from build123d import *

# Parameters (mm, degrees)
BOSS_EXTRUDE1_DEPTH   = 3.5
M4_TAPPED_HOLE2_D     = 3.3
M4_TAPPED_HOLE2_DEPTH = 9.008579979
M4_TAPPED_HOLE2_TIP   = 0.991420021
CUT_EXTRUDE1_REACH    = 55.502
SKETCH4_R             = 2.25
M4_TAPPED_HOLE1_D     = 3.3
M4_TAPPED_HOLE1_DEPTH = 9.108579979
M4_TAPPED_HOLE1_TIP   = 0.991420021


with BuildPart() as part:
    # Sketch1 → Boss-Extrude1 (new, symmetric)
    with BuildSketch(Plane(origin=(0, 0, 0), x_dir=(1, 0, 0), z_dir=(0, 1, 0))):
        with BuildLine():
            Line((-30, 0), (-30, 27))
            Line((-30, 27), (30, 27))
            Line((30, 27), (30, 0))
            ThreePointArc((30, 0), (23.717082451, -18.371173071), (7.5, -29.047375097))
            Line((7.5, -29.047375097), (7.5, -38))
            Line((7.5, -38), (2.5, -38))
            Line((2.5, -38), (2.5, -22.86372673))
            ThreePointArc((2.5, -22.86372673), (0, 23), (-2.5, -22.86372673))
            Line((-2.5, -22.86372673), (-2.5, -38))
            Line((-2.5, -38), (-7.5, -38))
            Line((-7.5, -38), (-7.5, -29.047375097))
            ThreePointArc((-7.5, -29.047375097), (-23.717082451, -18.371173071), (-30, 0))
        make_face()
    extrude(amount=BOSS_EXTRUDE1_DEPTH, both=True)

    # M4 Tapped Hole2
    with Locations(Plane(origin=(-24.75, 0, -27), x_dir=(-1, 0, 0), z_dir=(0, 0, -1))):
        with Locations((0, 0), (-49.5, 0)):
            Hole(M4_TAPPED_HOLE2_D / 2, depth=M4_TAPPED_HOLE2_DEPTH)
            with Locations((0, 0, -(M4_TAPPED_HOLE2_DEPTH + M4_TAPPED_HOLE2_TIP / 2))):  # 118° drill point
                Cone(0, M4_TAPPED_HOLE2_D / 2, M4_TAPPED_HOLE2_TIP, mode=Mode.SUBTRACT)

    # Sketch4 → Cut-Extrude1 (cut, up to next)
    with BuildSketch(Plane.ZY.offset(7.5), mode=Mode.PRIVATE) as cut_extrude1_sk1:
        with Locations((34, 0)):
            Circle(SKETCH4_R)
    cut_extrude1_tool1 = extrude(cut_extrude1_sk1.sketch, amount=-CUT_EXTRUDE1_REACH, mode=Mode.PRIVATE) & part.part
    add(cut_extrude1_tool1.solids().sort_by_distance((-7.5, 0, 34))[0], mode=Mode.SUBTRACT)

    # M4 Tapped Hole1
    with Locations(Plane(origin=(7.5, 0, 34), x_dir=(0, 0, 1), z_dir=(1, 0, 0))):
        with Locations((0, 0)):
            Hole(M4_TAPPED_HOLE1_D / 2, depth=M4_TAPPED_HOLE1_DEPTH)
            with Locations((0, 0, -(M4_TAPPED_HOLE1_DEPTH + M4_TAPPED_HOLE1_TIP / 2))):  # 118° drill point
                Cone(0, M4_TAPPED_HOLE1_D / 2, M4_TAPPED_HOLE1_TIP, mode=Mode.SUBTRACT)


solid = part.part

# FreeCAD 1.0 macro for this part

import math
import FreeCAD as App
import Part
import Sketcher
from FreeCAD import Vector

doc = App.newDocument("Part")
body = doc.addObject("PartDesign::Body", "Body")

# Sketch on XZ plane
sketch1 = doc.addObject("Sketcher::SketchObject", "Sketch")
body.addObject(sketch1)
sketch1.AttachmentSupport = (doc.XZ_Plane, [""])
sketch1.MapMode = "FlatFace"
sketch1.addGeometry([
    Part.LineSegment(Vector(-30, -27, 0), Vector(-30, 0, 0)),  # 0
    Part.ArcOfCircle(Part.Circle(Vector(0, 0, 0), Vector(0, 0, 1), 30), math.radians(104.477512), math.radians(180)),  # 1
    Part.LineSegment(Vector(-7.5, 29.047375, 0), Vector(-7.5, 38, 0)),  # 2
    Part.LineSegment(Vector(-7.5, 38, 0), Vector(-2.5, 38, 0)),  # 3
    Part.LineSegment(Vector(-2.5, 38, 0), Vector(-2.5, 22.863727, 0)),  # 4
    Part.ArcOfCircle(Part.Circle(Vector(0, 0, 0), Vector(0, 0, 1), 23), math.radians(96.240131), math.radians(443.759869)),  # 5
    Part.LineSegment(Vector(2.5, 22.863727, 0), Vector(2.5, 38, 0)),  # 6
    Part.LineSegment(Vector(2.5, 38, 0), Vector(7.5, 38, 0)),  # 7
    Part.LineSegment(Vector(7.5, 38, 0), Vector(7.5, 29.047375, 0)),  # 8
    Part.ArcOfCircle(Part.Circle(Vector(0, 0, 0), Vector(0, 0, 1), 30), math.radians(0), math.radians(75.522488)),  # 9
    Part.LineSegment(Vector(30, 0, 0), Vector(30, -27, 0)),  # 10
    Part.LineSegment(Vector(30, -27, 0), Vector(-30, -27, 0)),  # 11
], False)
sketch1.addConstraint([
    Sketcher.Constraint("Tangent", 0, 2, 1, 2),
    Sketcher.Constraint("Coincident", 1, 1, 2, 1),
    Sketcher.Constraint("Coincident", 2, 2, 3, 1),
    Sketcher.Constraint("Coincident", 3, 2, 4, 1),
    Sketcher.Constraint("Coincident", 4, 2, 5, 1),
    Sketcher.Constraint("Coincident", 5, 2, 6, 1),
    Sketcher.Constraint("Coincident", 6, 2, 7, 1),
    Sketcher.Constraint("Coincident", 7, 2, 8, 1),
    Sketcher.Constraint("Coincident", 8, 2, 9, 2),
    Sketcher.Constraint("Tangent", 9, 1, 10, 1),
    Sketcher.Constraint("Coincident", 10, 2, 11, 1),
    Sketcher.Constraint("Coincident", 11, 2, 0, 1),
    Sketcher.Constraint("Vertical", 0),
    Sketcher.Constraint("Vertical", 2),
    Sketcher.Constraint("Horizontal", 3),
    Sketcher.Constraint("Vertical", 4),
    Sketcher.Constraint("Vertical", 6),
    Sketcher.Constraint("Horizontal", 7),
    Sketcher.Constraint("Vertical", 8),
    Sketcher.Constraint("Vertical", 10),
    Sketcher.Constraint("Horizontal", 11),
    Sketcher.Constraint("Coincident", 1, 3, -1, 1),
    Sketcher.Constraint("Coincident", 5, 3, -1, 1),
    Sketcher.Constraint("Coincident", 9, 3, -1, 1),
    Sketcher.Constraint("Equal", 1, 9),
    Sketcher.Constraint("Symmetric", 3, 2, 6, 2, -2),
    Sketcher.Constraint("Horizontal", 1, 1, 8, 2),
    Sketcher.Constraint("Radius", 1, 30.0),
    Sketcher.Constraint("Radius", 5, 23.0),
    Sketcher.Constraint("DistanceX", 3, 1, 3, 2, 5.0),
    Sketcher.Constraint("DistanceY", 0, 1, 0, 2, 27.0),
    Sketcher.Constraint("DistanceY", -1, 1, 2, 2, 38.0),
    Sketcher.Constraint("DistanceX", 4, 2, 5, 2, 5.0),
])
pad1 = doc.addObject("PartDesign::Pad", "Pad")
body.addObject(pad1)
pad1.Profile = sketch1
pad1.Length = 7
pad1.Midplane = True

# Sketch on XY plane
sketch2 = doc.addObject("Sketcher::SketchObject", "Sketch001")
body.addObject(sketch2)
sketch2.AttachmentSupport = (doc.XY_Plane, [""])
sketch2.MapMode = "FlatFace"
sketch2.AttachmentOffset = App.Placement(Vector(0, 0, -27), App.Rotation())
sketch2.addGeometry([
    Part.Circle(Vector(-24.75, 0, 0), Vector(0, 0, 1), 1.65),
    Part.Circle(Vector(24.75, 0, 0), Vector(0, 0, 1), 1.65),
], False)
sketch2.addConstraint([
    Sketcher.Constraint("Equal", 0, 1),
    Sketcher.Constraint("Symmetric", 0, 3, 1, 3, -1, 1),
    Sketcher.Constraint("PointOnObject", 0, 3, -1),
    Sketcher.Constraint("Diameter", 0, 3.3),
    Sketcher.Constraint("DistanceX", 0, 3, 1, 3, 49.5),
])
doc.recompute()
hole = doc.addObject("PartDesign::Hole", "Hole")
body.addObject(hole)
hole.Profile = sketch2
hole.ThreadType = "None"
hole.Diameter = 3.3
hole.DepthType = "Dimension"
hole.Depth = 9.00858
hole.DrillPoint = "Angled"
hole.DrillPointAngle = 118
hole.Reversed = True

# Sketch on YZ plane
sketch3 = doc.addObject("Sketcher::SketchObject", "Sketch002")
body.addObject(sketch3)
sketch3.AttachmentSupport = (doc.YZ_Plane, [""])
sketch3.MapMode = "FlatFace"
sketch3.AttachmentOffset = App.Placement(Vector(0, 0, -7.5), App.Rotation())
sketch3.addGeometry(Part.Circle(Vector(0, 34, 0), Vector(0, 0, 1), 2.25), False)
sketch3.addConstraint([
    Sketcher.Constraint("PointOnObject", 0, 3, -2),
    Sketcher.Constraint("Diameter", 0, 4.5),
    Sketcher.Constraint("DistanceY", -1, 1, 0, 3, 34.0),
])
pocket1 = doc.addObject("PartDesign::Pocket", "Pocket")
body.addObject(pocket1)
pocket1.Profile = sketch3
pocket1.Type = "UpToFirst"
pocket1.Reversed = True

# Sketch on YZ plane
sketch4 = doc.addObject("Sketcher::SketchObject", "Sketch003")
body.addObject(sketch4)
sketch4.AttachmentSupport = (doc.YZ_Plane, [""])
sketch4.MapMode = "FlatFace"
sketch4.AttachmentOffset = App.Placement(Vector(0, 0, 7.5), App.Rotation())
sketch4.addGeometry(Part.Circle(Vector(0, 34, 0), Vector(0, 0, 1), 1.65), False)
sketch4.addConstraint([
    Sketcher.Constraint("PointOnObject", 0, 3, -2),
    Sketcher.Constraint("Diameter", 0, 3.3),
    Sketcher.Constraint("DistanceY", -1, 1, 0, 3, 34.0),
])
doc.recompute()
hole2 = doc.addObject("PartDesign::Hole", "Hole001")
body.addObject(hole2)
hole2.Profile = sketch4
hole2.ThreadType = "None"
hole2.Diameter = 3.3
hole2.DepthType = "Dimension"
hole2.Depth = 9.10858
hole2.DrillPoint = "Angled"
hole2.DrillPointAngle = 118

doc.recompute()
